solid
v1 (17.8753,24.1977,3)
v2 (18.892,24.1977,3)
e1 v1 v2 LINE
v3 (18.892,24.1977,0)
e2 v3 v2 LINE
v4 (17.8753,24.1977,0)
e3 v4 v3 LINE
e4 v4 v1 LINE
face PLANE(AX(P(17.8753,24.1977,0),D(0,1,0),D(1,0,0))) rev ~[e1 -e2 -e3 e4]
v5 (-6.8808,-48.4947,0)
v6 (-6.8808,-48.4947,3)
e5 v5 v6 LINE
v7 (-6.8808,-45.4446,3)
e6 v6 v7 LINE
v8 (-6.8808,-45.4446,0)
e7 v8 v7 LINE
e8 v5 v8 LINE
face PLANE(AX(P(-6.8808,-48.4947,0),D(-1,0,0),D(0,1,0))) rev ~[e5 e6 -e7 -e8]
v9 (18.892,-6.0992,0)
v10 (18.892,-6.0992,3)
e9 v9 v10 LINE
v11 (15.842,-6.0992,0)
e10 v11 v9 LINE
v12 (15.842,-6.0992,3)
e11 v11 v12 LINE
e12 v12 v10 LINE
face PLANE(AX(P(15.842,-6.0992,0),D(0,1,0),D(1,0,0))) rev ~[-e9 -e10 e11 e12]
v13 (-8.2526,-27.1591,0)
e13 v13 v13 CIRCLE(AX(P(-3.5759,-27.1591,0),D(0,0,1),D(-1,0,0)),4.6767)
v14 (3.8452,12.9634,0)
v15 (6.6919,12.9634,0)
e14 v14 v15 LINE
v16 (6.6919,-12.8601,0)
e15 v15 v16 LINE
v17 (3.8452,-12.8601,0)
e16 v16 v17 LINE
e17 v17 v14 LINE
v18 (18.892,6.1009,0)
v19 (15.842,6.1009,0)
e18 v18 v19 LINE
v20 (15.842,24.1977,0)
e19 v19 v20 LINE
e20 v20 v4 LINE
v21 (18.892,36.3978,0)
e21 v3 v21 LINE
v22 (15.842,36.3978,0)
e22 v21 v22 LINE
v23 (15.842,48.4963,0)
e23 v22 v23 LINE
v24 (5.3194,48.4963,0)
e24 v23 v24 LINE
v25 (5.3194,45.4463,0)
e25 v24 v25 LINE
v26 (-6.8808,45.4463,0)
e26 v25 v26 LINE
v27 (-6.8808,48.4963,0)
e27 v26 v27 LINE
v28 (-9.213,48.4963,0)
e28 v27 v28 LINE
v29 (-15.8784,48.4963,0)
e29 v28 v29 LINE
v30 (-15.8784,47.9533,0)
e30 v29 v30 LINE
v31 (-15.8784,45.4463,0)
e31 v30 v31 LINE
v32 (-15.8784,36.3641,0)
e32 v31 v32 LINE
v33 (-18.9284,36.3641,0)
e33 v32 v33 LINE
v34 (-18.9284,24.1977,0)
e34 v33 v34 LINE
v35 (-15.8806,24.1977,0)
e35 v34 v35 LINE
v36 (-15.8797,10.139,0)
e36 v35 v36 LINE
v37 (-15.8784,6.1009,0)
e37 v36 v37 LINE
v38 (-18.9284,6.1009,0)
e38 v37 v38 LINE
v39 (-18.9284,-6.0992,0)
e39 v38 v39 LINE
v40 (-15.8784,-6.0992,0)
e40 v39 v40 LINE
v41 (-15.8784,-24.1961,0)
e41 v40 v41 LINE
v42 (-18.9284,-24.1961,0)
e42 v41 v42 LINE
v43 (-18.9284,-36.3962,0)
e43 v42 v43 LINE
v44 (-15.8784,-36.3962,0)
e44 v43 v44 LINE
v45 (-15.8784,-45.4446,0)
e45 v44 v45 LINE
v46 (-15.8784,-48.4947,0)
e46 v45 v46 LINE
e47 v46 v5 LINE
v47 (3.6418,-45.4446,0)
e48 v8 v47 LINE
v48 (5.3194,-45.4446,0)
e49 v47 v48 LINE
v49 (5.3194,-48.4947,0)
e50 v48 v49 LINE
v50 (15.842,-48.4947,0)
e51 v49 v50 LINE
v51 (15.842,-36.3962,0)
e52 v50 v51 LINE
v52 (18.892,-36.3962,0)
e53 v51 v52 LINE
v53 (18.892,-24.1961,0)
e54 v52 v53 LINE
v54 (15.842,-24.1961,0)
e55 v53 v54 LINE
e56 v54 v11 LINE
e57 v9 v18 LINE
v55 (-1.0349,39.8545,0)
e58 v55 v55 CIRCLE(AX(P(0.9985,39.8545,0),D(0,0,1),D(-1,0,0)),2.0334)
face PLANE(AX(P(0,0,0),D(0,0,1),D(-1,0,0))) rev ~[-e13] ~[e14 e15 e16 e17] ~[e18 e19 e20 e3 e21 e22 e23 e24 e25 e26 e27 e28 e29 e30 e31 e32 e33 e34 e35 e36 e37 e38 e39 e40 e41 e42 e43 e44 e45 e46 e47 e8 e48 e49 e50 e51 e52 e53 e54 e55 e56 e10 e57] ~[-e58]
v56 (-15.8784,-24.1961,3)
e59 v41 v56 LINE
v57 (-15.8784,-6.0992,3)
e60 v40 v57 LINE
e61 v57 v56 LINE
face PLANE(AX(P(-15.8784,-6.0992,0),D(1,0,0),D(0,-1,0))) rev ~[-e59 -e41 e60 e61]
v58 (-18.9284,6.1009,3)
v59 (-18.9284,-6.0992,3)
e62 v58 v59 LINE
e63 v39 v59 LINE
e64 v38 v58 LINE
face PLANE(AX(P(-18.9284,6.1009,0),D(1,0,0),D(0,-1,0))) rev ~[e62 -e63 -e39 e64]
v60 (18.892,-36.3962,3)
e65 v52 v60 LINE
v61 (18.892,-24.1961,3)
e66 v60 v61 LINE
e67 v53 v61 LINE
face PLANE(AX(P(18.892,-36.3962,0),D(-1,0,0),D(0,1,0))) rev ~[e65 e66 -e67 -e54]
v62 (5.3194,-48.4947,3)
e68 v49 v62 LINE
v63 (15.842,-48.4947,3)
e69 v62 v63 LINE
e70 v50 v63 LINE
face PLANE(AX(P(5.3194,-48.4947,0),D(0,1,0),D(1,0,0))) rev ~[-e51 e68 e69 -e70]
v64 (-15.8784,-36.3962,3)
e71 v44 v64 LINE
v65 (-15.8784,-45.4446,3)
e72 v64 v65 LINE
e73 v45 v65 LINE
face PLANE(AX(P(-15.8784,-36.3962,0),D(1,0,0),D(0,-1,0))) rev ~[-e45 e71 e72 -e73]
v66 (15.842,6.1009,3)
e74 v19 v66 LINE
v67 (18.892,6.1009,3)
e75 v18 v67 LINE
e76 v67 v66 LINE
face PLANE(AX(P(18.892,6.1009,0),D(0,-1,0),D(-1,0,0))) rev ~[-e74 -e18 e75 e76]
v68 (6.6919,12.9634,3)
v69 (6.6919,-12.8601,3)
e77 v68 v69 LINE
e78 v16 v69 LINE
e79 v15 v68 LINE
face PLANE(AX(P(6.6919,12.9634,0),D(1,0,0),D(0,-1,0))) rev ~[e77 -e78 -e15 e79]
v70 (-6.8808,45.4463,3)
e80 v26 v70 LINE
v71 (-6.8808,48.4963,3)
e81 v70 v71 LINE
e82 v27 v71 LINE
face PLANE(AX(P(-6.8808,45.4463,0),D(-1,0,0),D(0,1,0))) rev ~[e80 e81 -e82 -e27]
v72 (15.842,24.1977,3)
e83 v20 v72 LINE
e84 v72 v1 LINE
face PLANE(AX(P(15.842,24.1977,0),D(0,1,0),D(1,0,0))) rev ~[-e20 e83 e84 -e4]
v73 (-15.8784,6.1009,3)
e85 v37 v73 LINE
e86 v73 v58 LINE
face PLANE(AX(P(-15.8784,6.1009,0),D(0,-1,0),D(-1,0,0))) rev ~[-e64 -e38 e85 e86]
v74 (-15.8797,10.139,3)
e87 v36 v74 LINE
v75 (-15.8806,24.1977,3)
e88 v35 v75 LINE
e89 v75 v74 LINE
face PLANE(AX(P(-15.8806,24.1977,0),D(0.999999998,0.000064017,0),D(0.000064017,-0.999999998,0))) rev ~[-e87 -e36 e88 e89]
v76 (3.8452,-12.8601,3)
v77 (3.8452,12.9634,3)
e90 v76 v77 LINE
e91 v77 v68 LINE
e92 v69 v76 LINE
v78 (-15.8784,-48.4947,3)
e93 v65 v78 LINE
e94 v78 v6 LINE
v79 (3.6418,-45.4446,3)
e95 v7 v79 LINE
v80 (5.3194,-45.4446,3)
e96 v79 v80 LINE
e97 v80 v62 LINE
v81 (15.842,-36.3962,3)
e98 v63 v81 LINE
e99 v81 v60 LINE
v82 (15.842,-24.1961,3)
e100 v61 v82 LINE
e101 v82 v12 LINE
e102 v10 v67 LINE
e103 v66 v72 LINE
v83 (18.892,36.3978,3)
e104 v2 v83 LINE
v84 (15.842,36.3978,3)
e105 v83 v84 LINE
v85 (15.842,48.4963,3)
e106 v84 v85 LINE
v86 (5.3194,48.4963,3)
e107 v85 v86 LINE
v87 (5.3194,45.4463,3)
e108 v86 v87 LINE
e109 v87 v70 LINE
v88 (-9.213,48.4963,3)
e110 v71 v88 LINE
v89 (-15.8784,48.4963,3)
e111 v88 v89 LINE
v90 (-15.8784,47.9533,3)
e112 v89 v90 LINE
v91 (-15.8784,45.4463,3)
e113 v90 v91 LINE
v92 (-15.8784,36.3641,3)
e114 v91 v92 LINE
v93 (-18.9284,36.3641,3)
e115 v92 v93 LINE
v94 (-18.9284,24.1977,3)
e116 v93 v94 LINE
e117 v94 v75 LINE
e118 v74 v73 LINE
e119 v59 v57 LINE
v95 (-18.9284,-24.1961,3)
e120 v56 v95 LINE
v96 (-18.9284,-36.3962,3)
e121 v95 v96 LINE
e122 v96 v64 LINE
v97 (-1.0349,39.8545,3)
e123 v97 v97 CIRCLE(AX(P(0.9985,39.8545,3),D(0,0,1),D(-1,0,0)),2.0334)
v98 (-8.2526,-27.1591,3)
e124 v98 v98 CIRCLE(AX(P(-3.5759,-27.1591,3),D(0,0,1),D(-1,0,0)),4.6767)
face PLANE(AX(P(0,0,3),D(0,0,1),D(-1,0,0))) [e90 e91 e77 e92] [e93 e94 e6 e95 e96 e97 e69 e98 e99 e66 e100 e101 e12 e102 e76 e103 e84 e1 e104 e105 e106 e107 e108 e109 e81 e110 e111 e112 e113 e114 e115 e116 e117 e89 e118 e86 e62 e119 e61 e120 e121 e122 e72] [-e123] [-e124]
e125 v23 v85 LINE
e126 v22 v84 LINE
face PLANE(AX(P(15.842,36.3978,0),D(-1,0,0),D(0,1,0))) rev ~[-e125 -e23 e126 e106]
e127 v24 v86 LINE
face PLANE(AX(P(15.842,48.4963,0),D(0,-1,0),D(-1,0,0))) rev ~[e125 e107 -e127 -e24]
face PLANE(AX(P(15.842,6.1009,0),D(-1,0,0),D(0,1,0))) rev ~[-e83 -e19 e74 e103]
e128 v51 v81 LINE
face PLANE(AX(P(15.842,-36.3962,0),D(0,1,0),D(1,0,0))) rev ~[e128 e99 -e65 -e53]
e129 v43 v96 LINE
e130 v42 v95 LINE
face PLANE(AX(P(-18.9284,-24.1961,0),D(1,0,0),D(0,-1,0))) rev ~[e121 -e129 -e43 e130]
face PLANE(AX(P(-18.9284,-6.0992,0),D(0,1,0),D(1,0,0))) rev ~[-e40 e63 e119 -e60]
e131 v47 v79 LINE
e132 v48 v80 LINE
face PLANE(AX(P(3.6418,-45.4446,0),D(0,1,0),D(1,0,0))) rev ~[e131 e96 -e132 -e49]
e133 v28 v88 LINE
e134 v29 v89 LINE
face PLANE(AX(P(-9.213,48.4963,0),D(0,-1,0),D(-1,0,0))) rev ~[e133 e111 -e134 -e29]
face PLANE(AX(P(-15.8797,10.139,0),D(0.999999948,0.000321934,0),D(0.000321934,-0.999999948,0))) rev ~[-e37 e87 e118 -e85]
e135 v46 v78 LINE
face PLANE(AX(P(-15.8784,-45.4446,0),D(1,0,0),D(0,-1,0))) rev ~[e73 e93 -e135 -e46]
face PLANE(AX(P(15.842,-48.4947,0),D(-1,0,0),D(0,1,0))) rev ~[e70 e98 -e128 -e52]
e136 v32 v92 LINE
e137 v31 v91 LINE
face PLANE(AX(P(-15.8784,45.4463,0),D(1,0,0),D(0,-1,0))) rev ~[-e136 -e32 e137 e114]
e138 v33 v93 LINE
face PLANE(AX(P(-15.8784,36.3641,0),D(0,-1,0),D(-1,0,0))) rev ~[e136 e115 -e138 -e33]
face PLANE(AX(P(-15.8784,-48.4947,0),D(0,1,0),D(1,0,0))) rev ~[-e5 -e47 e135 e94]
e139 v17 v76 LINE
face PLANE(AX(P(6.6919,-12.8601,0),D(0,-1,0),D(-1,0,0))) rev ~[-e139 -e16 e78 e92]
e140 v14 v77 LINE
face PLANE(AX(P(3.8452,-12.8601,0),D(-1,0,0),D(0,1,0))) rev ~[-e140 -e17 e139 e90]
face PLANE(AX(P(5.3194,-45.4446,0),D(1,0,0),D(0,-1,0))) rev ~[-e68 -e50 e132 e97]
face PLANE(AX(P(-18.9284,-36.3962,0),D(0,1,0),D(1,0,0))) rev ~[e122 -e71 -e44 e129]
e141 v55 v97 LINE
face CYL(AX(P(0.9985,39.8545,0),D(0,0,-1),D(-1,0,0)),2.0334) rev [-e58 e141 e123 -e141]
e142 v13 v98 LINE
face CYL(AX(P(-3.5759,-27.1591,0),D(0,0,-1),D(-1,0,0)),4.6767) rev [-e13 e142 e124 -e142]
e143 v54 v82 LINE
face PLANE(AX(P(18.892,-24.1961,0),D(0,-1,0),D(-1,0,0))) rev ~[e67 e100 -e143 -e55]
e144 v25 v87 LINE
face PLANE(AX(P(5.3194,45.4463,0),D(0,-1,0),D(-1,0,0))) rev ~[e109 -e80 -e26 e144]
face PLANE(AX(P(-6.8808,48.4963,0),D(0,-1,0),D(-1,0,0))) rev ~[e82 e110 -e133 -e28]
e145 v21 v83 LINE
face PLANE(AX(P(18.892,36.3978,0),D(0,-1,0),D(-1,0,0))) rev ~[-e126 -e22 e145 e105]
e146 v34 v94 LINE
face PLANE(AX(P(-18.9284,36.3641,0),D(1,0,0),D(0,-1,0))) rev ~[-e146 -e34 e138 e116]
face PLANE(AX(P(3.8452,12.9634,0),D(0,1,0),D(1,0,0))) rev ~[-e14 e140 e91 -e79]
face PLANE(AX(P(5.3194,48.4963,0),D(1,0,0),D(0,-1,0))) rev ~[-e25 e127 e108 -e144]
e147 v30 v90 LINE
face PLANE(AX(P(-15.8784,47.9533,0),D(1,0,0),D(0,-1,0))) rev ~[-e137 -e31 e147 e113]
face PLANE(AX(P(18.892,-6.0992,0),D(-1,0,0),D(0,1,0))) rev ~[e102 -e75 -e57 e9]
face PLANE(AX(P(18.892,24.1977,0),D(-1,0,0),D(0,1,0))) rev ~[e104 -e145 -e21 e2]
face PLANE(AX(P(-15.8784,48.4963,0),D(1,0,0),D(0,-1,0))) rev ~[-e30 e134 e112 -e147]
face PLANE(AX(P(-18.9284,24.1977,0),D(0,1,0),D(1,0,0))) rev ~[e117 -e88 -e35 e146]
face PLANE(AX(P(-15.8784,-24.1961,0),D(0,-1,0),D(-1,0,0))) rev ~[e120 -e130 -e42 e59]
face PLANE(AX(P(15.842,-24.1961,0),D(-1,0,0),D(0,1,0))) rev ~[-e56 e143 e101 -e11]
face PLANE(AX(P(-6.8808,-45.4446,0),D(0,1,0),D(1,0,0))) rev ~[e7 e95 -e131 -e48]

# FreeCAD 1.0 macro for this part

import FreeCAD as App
import Part
import Sketcher
Q = App.Units.Quantity

doc = App.newDocument("Part")
body = doc.addObject("PartDesign::Body", "Body")

# Sketch on XY plane
sketch1 = body.newObject("Sketcher::SketchObject", "Sketch")
sketch1.AttachmentSupport = (doc.getObject("XY_Plane"), [""])
sketch1.MapMode = "FlatFace"
sketch1.addGeometry([
    Part.LineSegment(App.Vector(18.9, 24.2, 0), App.Vector(18.9, 36.4, 0)),  # 0
    Part.LineSegment(App.Vector(18.9, 36.4, 0), App.Vector(15.8, 36.4, 0)),  # 1
    Part.LineSegment(App.Vector(15.8, 36.4, 0), App.Vector(15.8, 48.5, 0)),  # 2
    Part.LineSegment(App.Vector(15.8, 48.5, 0), App.Vector(5.3, 48.5, 0)),  # 3
    Part.LineSegment(App.Vector(5.3, 48.5, 0), App.Vector(5.3, 45.4, 0)),  # 4
    Part.LineSegment(App.Vector(5.3, 45.4, 0), App.Vector(-6.9, 45.4, 0)),  # 5
    Part.LineSegment(App.Vector(-6.9, 45.4, 0), App.Vector(-6.9, 48.5, 0)),  # 6
    Part.LineSegment(App.Vector(-6.9, 48.5, 0), App.Vector(-15.9, 48.5, 0)),  # 7
    Part.LineSegment(App.Vector(-15.9, 48.5, 0), App.Vector(-15.9, 36.4, 0)),  # 8
    Part.LineSegment(App.Vector(-15.9, 36.4, 0), App.Vector(-18.9, 36.4, 0)),  # 9
    Part.LineSegment(App.Vector(-18.9, 36.4, 0), App.Vector(-18.9, 24.2, 0)),  # 10
    Part.LineSegment(App.Vector(-18.9, 24.2, 0), App.Vector(-15.9, 24.2, 0)),  # 11
    Part.LineSegment(App.Vector(-15.9, 24.2, 0), App.Vector(-15.9, 10.1, 0)),  # 12
    Part.LineSegment(App.Vector(-15.9, 10.1, 0), App.Vector(-15.9, 6.1, 0)),  # 13
    Part.LineSegment(App.Vector(-15.9, 6.1, 0), App.Vector(-18.9, 6.1, 0)),  # 14
    Part.LineSegment(App.Vector(-18.9, 6.1, 0), App.Vector(-18.9, -6.1, 0)),  # 15
    Part.LineSegment(App.Vector(-18.9, -6.1, 0), App.Vector(-15.9, -6.1, 0)),  # 16
    Part.LineSegment(App.Vector(-15.9, -6.1, 0), App.Vector(-15.9, -24.2, 0)),  # 17
    Part.LineSegment(App.Vector(-15.9, -24.2, 0), App.Vector(-18.9, -24.2, 0)),  # 18
    Part.LineSegment(App.Vector(-18.9, -24.2, 0), App.Vector(-18.9, -36.4, 0)),  # 19
    Part.LineSegment(App.Vector(-18.9, -36.4, 0), App.Vector(-15.9, -36.4, 0)),  # 20
    Part.LineSegment(App.Vector(-15.9, -36.4, 0), App.Vector(-15.9, -48.5, 0)),  # 21
    Part.LineSegment(App.Vector(-15.9, -48.5, 0), App.Vector(-6.9, -48.5, 0)),  # 22
    Part.LineSegment(App.Vector(-6.9, -48.5, 0), App.Vector(-6.9, -45.4, 0)),  # 23
    Part.LineSegment(App.Vector(-6.9, -45.4, 0), App.Vector(5.3, -45.4, 0)),  # 24
    Part.LineSegment(App.Vector(5.3, -45.4, 0), App.Vector(5.3, -48.5, 0)),  # 25
    Part.LineSegment(App.Vector(5.3, -48.5, 0), App.Vector(15.8, -48.5, 0)),  # 26
    Part.LineSegment(App.Vector(15.8, -48.5, 0), App.Vector(15.8, -36.4, 0)),  # 27
    Part.LineSegment(App.Vector(15.8, -36.4, 0), App.Vector(18.9, -36.4, 0)),  # 28
    Part.LineSegment(App.Vector(18.9, -36.4, 0), App.Vector(18.9, -24.2, 0)),  # 29
    Part.LineSegment(App.Vector(18.9, -24.2, 0), App.Vector(15.8, -24.2, 0)),  # 30
    Part.LineSegment(App.Vector(15.8, -24.2, 0), App.Vector(15.8, -6.1, 0)),  # 31
    Part.LineSegment(App.Vector(15.8, -6.1, 0), App.Vector(18.9, -6.1, 0)),  # 32
    Part.LineSegment(App.Vector(18.9, -6.1, 0), App.Vector(18.9, 6.1, 0)),  # 33
    Part.LineSegment(App.Vector(18.9, 6.1, 0), App.Vector(15.8, 6.1, 0)),  # 34
    Part.LineSegment(App.Vector(15.8, 6.1, 0), App.Vector(15.8, 24.2, 0)),  # 35
    Part.LineSegment(App.Vector(15.8, 24.2, 0), App.Vector(18.9, 24.2, 0)),  # 36
    Part.Circle(App.Vector(1, 39.9, 0), App.Vector(0, 0, 1), 2),  # 37
    Part.LineSegment(App.Vector(3.8, 13, 0), App.Vector(6.7, 13, 0)),  # 38
    Part.LineSegment(App.Vector(6.7, 13, 0), App.Vector(6.7, -12.9, 0)),  # 39
    Part.LineSegment(App.Vector(6.7, -12.9, 0), App.Vector(3.8, -12.9, 0)),  # 40
    Part.LineSegment(App.Vector(3.8, -12.9, 0), App.Vector(3.8, 13, 0)),  # 41
    Part.Circle(App.Vector(-3.6, -27.2, 0), App.Vector(0, 0, 1), 4.7),  # 42
], False)
sketch1.addConstraint([
    Sketcher.Constraint("Coincident", 0, 2, 1, 1),
    Sketcher.Constraint("Coincident", 1, 2, 2, 1),
    Sketcher.Constraint("Coincident", 2, 2, 3, 1),
    Sketcher.Constraint("Coincident", 3, 2, 4, 1),
    Sketcher.Constraint("Coincident", 4, 2, 5, 1),
    Sketcher.Constraint("Coincident", 5, 2, 6, 1),
    Sketcher.Constraint("Coincident", 6, 2, 7, 1),
    Sketcher.Constraint("Coincident", 7, 2, 8, 1),
    Sketcher.Constraint("Coincident", 8, 2, 9, 1),
    Sketcher.Constraint("Coincident", 9, 2, 10, 1),
    Sketcher.Constraint("Coincident", 10, 2, 11, 1),
    Sketcher.Constraint("Coincident", 11, 2, 12, 1),
    Sketcher.Constraint("Coincident", 12, 2, 13, 1),
    Sketcher.Constraint("Coincident", 13, 2, 14, 1),
    Sketcher.Constraint("Coincident", 14, 2, 15, 1),
    Sketcher.Constraint("Coincident", 15, 2, 16, 1),
    Sketcher.Constraint("Coincident", 16, 2, 17, 1),
    Sketcher.Constraint("Coincident", 17, 2, 18, 1),
    Sketcher.Constraint("Coincident", 18, 2, 19, 1),
    Sketcher.Constraint("Coincident", 19, 2, 20, 1),
    Sketcher.Constraint("Coincident", 20, 2, 21, 1),
    Sketcher.Constraint("Coincident", 21, 2, 22, 1),
    Sketcher.Constraint("Coincident", 22, 2, 23, 1),
    Sketcher.Constraint("Coincident", 23, 2, 24, 1),
    Sketcher.Constraint("Coincident", 24, 2, 25, 1),
    Sketcher.Constraint("Coincident", 25, 2, 26, 1),
    Sketcher.Constraint("Coincident", 26, 2, 27, 1),
    Sketcher.Constraint("Coincident", 27, 2, 28, 1),
    Sketcher.Constraint("Coincident", 28, 2, 29, 1),
    Sketcher.Constraint("Coincident", 29, 2, 30, 1),
    Sketcher.Constraint("Coincident", 30, 2, 31, 1),
    Sketcher.Constraint("Coincident", 31, 2, 32, 1),
    Sketcher.Constraint("Coincident", 32, 2, 33, 1),
    Sketcher.Constraint("Coincident", 33, 2, 34, 1),
    Sketcher.Constraint("Coincident", 34, 2, 35, 1),
    Sketcher.Constraint("Coincident", 35, 2, 36, 1),
    Sketcher.Constraint("Coincident", 36, 2, 0, 1),
    Sketcher.Constraint("Coincident", 38, 2, 39, 1),
    Sketcher.Constraint("Coincident", 39, 2, 40, 1),
    Sketcher.Constraint("Coincident", 40, 2, 41, 1),
    Sketcher.Constraint("Coincident", 41, 2, 38, 1),
    Sketcher.Constraint("Vertical", 0),
    Sketcher.Constraint("Horizontal", 1),
    Sketcher.Constraint("Vertical", 2),
    Sketcher.Constraint("Horizontal", 3),
    Sketcher.Constraint("Vertical", 4),
    Sketcher.Constraint("Horizontal", 5),
    Sketcher.Constraint("Vertical", 6),
    Sketcher.Constraint("Horizontal", 7),
    Sketcher.Constraint("Vertical", 8),
    Sketcher.Constraint("Horizontal", 9),
    Sketcher.Constraint("Vertical", 10),
    Sketcher.Constraint("Horizontal", 11),
    Sketcher.Constraint("Horizontal", 14),
    Sketcher.Constraint("Vertical", 15),
    Sketcher.Constraint("Horizontal", 16),
    Sketcher.Constraint("Vertical", 17),
    Sketcher.Constraint("Horizontal", 18),
    Sketcher.Constraint("Vertical", 19),
    Sketcher.Constraint("Horizontal", 20),
    Sketcher.Constraint("Vertical", 21),
    Sketcher.Constraint("Horizontal", 22),
    Sketcher.Constraint("Vertical", 23),
    Sketcher.Constraint("Horizontal", 24),
    Sketcher.Constraint("Vertical", 25),
    Sketcher.Constraint("Horizontal", 26),
    Sketcher.Constraint("Vertical", 27),
    Sketcher.Constraint("Horizontal", 28),
    Sketcher.Constraint("Vertical", 29),
    Sketcher.Constraint("Horizontal", 30),
    Sketcher.Constraint("Vertical", 31),
    Sketcher.Constraint("Horizontal", 32),
    Sketcher.Constraint("Vertical", 33),
    Sketcher.Constraint("Horizontal", 34),
    Sketcher.Constraint("Vertical", 35),
    Sketcher.Constraint("Horizontal", 36),
    Sketcher.Constraint("Horizontal", 38),
    Sketcher.Constraint("Vertical", 39),
    Sketcher.Constraint("Horizontal", 40),
    Sketcher.Constraint("Vertical", 41),
    Sketcher.Constraint("Parallel", 12, 13),
    Sketcher.Constraint("Horizontal", 3, 2, 6, 2),
    Sketcher.Constraint("Horizontal", 22, 2, 25, 2),
    Sketcher.Constraint("Horizontal", 20, 2, 27, 2),
    Sketcher.Constraint("Horizontal", 18, 2, 29, 2),
    Sketcher.Constraint("Horizontal", 16, 2, 31, 2),
    Sketcher.Constraint("Horizontal", 14, 2, 33, 2),
    Sketcher.Constraint("Horizontal", 11, 2, 35, 2),
    Sketcher.Constraint("Vertical", 8, 2, 13, 2),
    Sketcher.Constraint("Vertical", 10, 2, 14, 2),
    Sketcher.Constraint("Vertical", 13, 2, 16, 2),
    Sketcher.Constraint("Vertical", 15, 2, 18, 2),
    Sketcher.Constraint("Vertical", 17, 2, 20, 2),
    Sketcher.Constraint("Vertical", 6, 2, 22, 2),
    Sketcher.Constraint("Vertical", 4, 2, 24, 2),
    Sketcher.Constraint("Vertical", 2, 2, 26, 2),
    Sketcher.Constraint("Vertical", 0, 2, 28, 2),
    Sketcher.Constraint("Vertical", 27, 2, 30, 2),
    Sketcher.Constraint("Vertical", 29, 2, 32, 2),
    Sketcher.Constraint("Vertical", 31, 2, 34, 2),
    Sketcher.Constraint("Equal", 1, 9),
    Sketcher.Constraint("Equal", 24, 0),
    Sketcher.Constraint("Equal", 36, 4),
    Sketcher.Constraint("Equal", 0, 15),
    Sketcher.Constraint("Equal", 15, 19),
    Sketcher.Constraint("Equal", 2, 21),
    Sketcher.Constraint("Equal", 6, 23),
    Sketcher.Constraint("Equal", 31, 35),
    Sketcher.Constraint("Diameter", 37, Q("0.1601 in")),
    Sketcher.Constraint("DistanceX", 11, 1, 11, 2, Q("0.12 in")),
    Sketcher.Constraint("Diameter", 42, 9.3534),
    Sketcher.Constraint("DistanceY", 10, 2, 10, 1, Q("0.479 in")),
    Sketcher.Constraint("Distance", 12, Q("0.5535 in")),
    Sketcher.Constraint("DistanceX", 1, 2, 1, 1, 3.05),
    Sketcher.Constraint("DistanceX", 3, 2, 3, 1, 10.5226),
    Sketcher.Constraint("DistanceX", 5, 2, 5, 1, 12.2002),
    Sketcher.Constraint("DistanceX", 7, 2, 7, 1, 8.9976),
    Sketcher.Constraint("DistanceX", 38, 1, 38, 2, 2.8467),
    Sketcher.Constraint("DistanceY", 2, 1, 2, 2, 12.0985),
    Sketcher.Constraint("DistanceY", 17, 2, 17, 1, 18.097),
    Sketcher.Constraint("DistanceY", 39, 2, 39, 1, 25.8235),
    Sketcher.Constraint("DistanceX", -1, 1, 37, 3, Q("0.0393 in")),
    Sketcher.Constraint("DistanceX", -1, 1, 1, 2, Q("0.6237 in")),
    Sketcher.Constraint("DistanceY", -1, 1, 2, 2, Q("1.9093 in")),
    Sketcher.Constraint("DistanceY", 39, 2, -1, 1, Q("0.5063 in")),
    Sketcher.Constraint("DistanceX", 42, 3, 37, 3, Q("0.1801 in")),
    Sketcher.Constraint("DistanceY", 0, 2, 37, 3, Q("0.1361 in")),
    Sketcher.Constraint("DistanceY", 23, 2, 42, 3, Q("0.7199 in")),
    Sketcher.Constraint("DistanceX", 40, 2, 32, 2, Q("0.5924 in")),
])
pad1 = body.newObject("PartDesign::Pad", "Pad")
pad1.Profile = sketch1
pad1.Length = Q("0.1181102 in")

doc.recompute()
